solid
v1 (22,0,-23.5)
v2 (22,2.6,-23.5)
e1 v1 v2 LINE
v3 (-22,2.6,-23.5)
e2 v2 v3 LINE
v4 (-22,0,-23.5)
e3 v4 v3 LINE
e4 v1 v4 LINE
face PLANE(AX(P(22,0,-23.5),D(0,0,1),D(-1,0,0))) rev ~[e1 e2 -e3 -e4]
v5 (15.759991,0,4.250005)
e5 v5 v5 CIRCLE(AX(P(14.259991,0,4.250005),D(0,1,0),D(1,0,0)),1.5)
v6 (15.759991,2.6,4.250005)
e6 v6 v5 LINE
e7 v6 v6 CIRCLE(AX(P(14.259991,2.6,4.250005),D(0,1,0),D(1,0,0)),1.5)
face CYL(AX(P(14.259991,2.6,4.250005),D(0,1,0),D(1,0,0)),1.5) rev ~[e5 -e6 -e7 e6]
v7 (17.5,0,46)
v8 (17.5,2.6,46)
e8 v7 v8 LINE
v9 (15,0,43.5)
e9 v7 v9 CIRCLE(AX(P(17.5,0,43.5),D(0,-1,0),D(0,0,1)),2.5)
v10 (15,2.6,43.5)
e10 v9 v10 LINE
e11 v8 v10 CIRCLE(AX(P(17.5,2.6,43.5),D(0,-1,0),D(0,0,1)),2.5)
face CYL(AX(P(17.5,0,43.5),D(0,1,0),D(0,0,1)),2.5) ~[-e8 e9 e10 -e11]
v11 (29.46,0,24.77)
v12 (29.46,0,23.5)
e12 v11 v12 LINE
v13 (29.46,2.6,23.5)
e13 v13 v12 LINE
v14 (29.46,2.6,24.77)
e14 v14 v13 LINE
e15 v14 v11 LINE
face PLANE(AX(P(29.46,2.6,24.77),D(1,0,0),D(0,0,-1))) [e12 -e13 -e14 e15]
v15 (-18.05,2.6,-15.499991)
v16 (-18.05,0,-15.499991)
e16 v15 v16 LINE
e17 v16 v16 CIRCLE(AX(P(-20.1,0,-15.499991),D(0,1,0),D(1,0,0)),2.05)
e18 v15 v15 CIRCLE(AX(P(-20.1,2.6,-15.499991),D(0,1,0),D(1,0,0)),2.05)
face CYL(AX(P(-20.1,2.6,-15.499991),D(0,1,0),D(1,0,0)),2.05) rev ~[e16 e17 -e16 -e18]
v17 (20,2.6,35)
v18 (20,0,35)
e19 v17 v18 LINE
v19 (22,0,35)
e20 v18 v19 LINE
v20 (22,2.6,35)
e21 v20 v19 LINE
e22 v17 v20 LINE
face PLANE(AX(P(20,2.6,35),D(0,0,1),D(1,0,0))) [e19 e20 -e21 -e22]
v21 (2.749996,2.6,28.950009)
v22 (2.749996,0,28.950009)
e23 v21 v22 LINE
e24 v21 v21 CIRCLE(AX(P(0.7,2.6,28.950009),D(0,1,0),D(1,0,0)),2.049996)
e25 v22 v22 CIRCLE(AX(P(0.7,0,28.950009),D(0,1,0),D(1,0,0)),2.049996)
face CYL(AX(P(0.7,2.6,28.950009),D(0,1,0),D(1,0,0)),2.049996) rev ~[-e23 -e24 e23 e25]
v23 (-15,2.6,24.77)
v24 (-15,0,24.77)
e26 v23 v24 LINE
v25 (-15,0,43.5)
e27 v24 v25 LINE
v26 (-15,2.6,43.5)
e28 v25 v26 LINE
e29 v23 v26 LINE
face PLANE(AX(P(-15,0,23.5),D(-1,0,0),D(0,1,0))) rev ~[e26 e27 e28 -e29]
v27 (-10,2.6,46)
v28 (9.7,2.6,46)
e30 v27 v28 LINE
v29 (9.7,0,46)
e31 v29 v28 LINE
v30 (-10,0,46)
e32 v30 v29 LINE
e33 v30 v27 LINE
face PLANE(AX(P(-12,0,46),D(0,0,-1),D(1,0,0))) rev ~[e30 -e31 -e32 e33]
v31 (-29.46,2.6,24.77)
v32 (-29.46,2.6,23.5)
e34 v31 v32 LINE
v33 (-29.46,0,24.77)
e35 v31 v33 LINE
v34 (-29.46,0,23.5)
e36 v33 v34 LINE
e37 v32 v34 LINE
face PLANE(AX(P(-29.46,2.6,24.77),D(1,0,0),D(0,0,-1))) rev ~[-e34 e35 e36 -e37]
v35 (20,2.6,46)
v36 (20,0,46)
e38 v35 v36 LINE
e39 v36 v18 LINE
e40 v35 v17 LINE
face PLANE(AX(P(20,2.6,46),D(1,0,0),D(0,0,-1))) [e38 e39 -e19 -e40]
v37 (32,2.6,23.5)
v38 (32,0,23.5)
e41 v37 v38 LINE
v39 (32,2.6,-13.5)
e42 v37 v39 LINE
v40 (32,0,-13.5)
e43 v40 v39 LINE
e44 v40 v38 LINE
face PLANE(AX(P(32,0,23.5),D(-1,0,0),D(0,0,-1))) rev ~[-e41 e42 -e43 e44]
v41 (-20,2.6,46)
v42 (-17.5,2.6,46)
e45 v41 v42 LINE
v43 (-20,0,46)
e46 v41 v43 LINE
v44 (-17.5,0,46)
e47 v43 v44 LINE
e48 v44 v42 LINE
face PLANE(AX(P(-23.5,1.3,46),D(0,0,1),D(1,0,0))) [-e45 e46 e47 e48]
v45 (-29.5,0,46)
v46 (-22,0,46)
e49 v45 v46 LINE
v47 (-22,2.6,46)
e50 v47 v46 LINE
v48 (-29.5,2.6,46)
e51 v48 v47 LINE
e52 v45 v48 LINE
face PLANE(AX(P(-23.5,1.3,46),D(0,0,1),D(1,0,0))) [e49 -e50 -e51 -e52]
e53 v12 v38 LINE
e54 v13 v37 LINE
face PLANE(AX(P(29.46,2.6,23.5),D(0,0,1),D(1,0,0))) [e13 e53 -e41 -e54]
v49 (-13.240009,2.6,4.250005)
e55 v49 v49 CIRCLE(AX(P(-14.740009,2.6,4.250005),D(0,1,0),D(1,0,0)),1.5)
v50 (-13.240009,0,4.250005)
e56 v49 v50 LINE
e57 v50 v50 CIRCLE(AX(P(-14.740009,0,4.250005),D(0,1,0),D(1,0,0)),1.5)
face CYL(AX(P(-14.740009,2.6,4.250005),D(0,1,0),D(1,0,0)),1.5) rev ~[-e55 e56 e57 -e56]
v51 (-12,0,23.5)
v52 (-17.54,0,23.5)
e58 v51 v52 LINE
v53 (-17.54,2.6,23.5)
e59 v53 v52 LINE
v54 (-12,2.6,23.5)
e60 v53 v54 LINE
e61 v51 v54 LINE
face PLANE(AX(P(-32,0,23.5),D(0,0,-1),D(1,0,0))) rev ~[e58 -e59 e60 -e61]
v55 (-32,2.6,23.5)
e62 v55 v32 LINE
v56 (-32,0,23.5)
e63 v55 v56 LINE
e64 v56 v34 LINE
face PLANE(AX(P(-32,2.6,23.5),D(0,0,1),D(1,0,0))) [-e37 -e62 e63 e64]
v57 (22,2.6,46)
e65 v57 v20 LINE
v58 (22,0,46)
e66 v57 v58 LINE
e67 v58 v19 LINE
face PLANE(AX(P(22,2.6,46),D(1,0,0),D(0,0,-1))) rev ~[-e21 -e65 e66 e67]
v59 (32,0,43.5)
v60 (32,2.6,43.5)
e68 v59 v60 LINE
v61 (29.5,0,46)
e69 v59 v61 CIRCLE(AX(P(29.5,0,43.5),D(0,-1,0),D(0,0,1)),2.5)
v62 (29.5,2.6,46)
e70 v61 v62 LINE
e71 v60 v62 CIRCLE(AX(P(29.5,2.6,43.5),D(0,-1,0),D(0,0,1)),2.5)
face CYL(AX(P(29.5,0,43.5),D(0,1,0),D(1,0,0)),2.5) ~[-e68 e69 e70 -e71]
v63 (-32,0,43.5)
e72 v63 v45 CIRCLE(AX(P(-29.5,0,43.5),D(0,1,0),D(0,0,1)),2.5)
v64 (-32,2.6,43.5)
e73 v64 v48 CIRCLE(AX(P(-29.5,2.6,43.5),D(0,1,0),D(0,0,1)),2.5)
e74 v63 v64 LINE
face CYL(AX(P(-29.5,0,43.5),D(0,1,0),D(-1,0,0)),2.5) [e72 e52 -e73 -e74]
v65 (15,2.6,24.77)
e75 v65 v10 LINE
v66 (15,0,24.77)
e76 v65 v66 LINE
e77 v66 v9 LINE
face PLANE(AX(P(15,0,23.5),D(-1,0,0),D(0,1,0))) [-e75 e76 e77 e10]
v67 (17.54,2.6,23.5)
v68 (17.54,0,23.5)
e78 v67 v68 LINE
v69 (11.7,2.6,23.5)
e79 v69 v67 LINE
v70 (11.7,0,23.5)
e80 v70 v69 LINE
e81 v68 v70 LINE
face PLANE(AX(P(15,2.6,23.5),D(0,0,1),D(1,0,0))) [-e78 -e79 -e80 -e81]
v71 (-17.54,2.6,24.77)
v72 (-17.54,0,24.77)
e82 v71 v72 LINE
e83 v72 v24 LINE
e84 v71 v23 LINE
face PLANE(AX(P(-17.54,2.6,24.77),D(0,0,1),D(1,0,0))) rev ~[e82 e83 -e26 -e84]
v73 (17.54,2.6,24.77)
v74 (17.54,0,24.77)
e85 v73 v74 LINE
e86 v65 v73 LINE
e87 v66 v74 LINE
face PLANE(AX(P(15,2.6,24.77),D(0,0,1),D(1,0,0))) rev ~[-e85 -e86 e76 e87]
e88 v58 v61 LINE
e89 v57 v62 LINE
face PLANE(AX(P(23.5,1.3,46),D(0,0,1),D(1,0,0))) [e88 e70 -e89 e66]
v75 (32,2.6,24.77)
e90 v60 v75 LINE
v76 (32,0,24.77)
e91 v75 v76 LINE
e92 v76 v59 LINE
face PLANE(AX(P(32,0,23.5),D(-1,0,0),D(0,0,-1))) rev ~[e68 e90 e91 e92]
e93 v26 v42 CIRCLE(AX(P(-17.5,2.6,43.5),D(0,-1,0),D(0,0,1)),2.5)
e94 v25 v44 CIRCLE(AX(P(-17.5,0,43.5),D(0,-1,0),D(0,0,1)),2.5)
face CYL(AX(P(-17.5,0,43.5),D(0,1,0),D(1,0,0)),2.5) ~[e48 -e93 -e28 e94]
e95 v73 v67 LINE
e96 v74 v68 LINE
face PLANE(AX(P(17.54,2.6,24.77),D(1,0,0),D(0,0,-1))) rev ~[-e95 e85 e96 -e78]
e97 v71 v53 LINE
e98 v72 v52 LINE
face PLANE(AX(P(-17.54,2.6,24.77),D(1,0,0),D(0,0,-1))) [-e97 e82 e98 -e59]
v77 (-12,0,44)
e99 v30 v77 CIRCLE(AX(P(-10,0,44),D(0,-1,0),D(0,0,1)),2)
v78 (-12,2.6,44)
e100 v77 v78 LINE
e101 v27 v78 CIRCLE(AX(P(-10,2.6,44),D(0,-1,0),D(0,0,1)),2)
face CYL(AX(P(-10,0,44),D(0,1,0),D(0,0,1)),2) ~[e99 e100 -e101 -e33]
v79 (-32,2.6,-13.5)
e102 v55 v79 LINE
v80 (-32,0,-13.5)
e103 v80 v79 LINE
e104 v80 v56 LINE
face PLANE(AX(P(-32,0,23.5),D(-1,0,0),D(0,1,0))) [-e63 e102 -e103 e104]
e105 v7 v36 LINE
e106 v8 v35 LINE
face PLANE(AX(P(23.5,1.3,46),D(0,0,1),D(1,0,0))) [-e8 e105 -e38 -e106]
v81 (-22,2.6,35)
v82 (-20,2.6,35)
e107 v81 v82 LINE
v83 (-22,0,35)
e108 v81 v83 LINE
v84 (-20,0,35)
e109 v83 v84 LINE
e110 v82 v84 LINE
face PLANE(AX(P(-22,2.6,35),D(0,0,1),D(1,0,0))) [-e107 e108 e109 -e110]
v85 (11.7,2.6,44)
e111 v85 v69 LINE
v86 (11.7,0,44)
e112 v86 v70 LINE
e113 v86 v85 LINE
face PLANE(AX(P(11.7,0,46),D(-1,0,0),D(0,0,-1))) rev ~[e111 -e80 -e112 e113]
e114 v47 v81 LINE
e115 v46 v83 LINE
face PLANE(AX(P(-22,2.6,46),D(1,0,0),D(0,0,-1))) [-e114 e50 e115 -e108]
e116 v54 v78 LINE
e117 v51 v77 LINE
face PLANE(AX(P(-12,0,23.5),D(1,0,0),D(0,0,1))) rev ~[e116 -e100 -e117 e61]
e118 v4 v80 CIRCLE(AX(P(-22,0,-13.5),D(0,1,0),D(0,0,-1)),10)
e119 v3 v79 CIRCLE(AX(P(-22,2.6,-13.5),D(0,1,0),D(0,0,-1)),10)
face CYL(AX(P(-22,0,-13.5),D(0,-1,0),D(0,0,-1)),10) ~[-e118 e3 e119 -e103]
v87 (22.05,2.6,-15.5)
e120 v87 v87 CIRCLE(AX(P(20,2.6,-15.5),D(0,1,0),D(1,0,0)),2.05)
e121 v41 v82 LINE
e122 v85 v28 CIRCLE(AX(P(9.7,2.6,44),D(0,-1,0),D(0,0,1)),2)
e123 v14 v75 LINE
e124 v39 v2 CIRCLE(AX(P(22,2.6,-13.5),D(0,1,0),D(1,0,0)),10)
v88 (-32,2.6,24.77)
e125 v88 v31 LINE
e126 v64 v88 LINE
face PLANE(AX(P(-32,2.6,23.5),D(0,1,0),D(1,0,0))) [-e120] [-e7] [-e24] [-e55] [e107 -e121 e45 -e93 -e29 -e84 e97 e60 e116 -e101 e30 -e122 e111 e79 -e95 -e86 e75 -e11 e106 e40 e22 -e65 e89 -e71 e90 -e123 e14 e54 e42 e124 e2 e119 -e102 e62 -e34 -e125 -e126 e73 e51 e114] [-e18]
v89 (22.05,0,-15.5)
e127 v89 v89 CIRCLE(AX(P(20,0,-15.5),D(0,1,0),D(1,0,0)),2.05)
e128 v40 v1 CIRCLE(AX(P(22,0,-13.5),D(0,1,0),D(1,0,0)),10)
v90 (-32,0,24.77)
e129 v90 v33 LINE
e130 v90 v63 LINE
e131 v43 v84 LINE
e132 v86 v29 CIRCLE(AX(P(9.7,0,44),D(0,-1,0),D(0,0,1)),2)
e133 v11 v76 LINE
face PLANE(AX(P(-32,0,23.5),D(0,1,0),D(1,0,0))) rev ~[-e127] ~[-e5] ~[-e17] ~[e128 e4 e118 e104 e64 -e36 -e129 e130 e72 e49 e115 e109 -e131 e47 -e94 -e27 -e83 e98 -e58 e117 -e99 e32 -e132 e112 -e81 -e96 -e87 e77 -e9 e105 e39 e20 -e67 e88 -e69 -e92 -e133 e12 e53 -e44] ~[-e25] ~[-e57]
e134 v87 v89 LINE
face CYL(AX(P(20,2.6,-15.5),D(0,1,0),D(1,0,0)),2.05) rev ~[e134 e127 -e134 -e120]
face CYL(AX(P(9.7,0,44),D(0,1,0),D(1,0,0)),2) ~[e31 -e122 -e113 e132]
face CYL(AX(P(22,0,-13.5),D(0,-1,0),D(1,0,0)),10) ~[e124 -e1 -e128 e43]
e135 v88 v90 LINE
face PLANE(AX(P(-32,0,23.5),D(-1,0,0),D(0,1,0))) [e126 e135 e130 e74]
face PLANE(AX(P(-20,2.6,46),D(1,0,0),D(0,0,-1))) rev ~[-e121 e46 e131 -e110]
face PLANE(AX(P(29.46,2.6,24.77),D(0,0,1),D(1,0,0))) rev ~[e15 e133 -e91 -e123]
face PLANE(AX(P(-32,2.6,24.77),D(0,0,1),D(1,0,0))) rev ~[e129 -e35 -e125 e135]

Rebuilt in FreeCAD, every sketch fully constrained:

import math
import FreeCAD as App
import Part
import Sketcher

V = App.Vector


def edges_at(feature, points):
    """Names of the edges that pass closest to the given points."""
    edges = feature.Shape.Edges
    near = lambda p: min(range(len(edges)), key=lambda i: edges[i].distToShape(Part.Vertex(*p))[0])
    return sorted({f"Edge{near(p) + 1}" for p in points})

doc = App.newDocument("Part")
body = doc.addObject("PartDesign::Body", "Body")

# Sketch on XZ plane
sketch1 = body.newObject("Sketcher::SketchObject", "Sketch")
sketch1.AttachmentSupport = (doc.getObject("XZ_Plane"), [""])
sketch1.MapMode = "FlatFace"
sketch1.addGeometry([
    Part.LineSegment(V(12, 24, 0), V(32, 24, 0)),  # 0
    Part.LineSegment(V(32, 24, 0), V(32, -14, 0)),  # 1
    Part.ArcOfCircle(Part.Circle(V(22, -14, 0), V(0, 0, 1), 10), math.radians(-90), math.radians(0)),  # 2
    Part.LineSegment(V(22, -24, 0), V(-22, -24, 0)),  # 3
    Part.ArcOfCircle(Part.Circle(V(-22, -14, 0), V(0, 0, 1), 10), math.radians(180), math.radians(270)),  # 4
    Part.LineSegment(V(-32, -14, 0), V(-32, 24, 0)),  # 5
    Part.LineSegment(V(-32, 24, 0), V(-12, 24, 0)),  # 6
    Part.LineSegment(V(-12, 24, 0), V(-12, 46, 0)),  # 7
    Part.LineSegment(V(-12, 46, 0), V(12, 46, 0)),  # 8
    Part.LineSegment(V(12, 46, 0), V(12, 24, 0)),  # 9
], False)
sketch1.addConstraint([
    Sketcher.Constraint("Coincident", 0, 2, 1, 1),
    Sketcher.Constraint("Tangent", 1, 2, 2, 2),
    Sketcher.Constraint("Tangent", 2, 1, 3, 1),
    Sketcher.Constraint("Tangent", 3, 2, 4, 2),
    Sketcher.Constraint("Tangent", 4, 1, 5, 1),
    Sketcher.Constraint("Coincident", 5, 2, 6, 1),
    Sketcher.Constraint("Coincident", 6, 2, 7, 1),
    Sketcher.Constraint("Coincident", 7, 2, 8, 1),
    Sketcher.Constraint("Coincident", 8, 2, 9, 1),
    Sketcher.Constraint("Coincident", 9, 2, 0, 1),
    Sketcher.Constraint("Horizontal", 0),
    Sketcher.Constraint("Vertical", 1),
    Sketcher.Constraint("Horizontal", 3),
    Sketcher.Constraint("Vertical", 5),
    Sketcher.Constraint("Horizontal", 6),
    Sketcher.Constraint("Vertical", 7),
    Sketcher.Constraint("Horizontal", 8),
    Sketcher.Constraint("Vertical", 9),
    Sketcher.Constraint("Equal", 2, 4),
    Sketcher.Constraint("Symmetric", 0, 2, 5, 2, -2),
    Sketcher.Constraint("Radius", 2, 10.0),
    Sketcher.Constraint("DistanceX", 3, 2, 3, 1, 44.0),
    Sketcher.Constraint("DistanceX", 6, 1, 6, 2, 20.0),
    Sketcher.Constraint("DistanceY", 1, 2, 1, 1, 37.0),
    Sketcher.Constraint("DistanceX", 0, 1, 0, 2, 20.3),
    Sketcher.Constraint("DistanceY", 7, 1, 7, 2, 22.5),
    Sketcher.Constraint("DistanceY", -1, 1, 7, 2, 46.0),
])
pad1 = body.newObject("PartDesign::Pad", "Pad")
pad1.Profile = sketch1
pad1.Length = 2.6
pad1.Reversed = True

# Sketch on XZ plane
sketch2 = body.newObject("Sketcher::SketchObject", "Sketch001")
sketch2.AttachmentSupport = (doc.getObject("XZ_Plane"), [""])
sketch2.MapMode = "FlatFace"
sketch2.AttachmentOffset = App.Placement(V(0, 0, -2.6), App.Rotation())
sketch2.addGeometry([
    Part.Circle(V(-20.1, -15.5, 0), V(0, 0, 1), 2),  # 0
    Part.Circle(V(20, -15.5, 0), V(0, 0, 1), 2),  # 1
    Part.Circle(V(-14.7, 4.3, 0), V(0, 0, 1), 1.5),  # 2
    Part.Circle(V(14.3, 4.3, 0), V(0, 0, 1), 1.5),  # 3
    Part.Circle(V(0.7, 29, 0), V(0, 0, 1), 2),  # 4
], False)
sketch2.addConstraint([
    Sketcher.Constraint("Equal", 0, 1),
    Sketcher.Constraint("Equal", 2, 3),
    Sketcher.Constraint("Horizontal", 2, 3, 3, 3),
    Sketcher.Constraint("Diameter", 2, 3.0),
    Sketcher.Constraint("Diameter", 0, 4.1),
    Sketcher.Constraint("DistanceX", -1, 1, 1, 3, 20.0),
    Sketcher.Constraint("DistanceX", 2, 3, 3, 3, 29.0),
    Sketcher.Constraint("DistanceX", 0, 3, -1, 1, 20.1),
    Sketcher.Constraint("DistanceY", 1, 3, -1, 1, 15.5),
    Sketcher.Constraint("DistanceX", -1, 1, 4, 3, 0.7),
    Sketcher.Constraint("Diameter", 4, 4.099992),
    Sketcher.Constraint("DistanceY", 0, 3, 4, 3, 44.45),
    Sketcher.Constraint("DistanceY", 0, 3, -1, 1, 15.499991),
    Sketcher.Constraint("DistanceX", 2, 3, -1, 1, 14.740009),
    Sketcher.Constraint("DistanceY", -1, 1, 2, 3, 4.250005),
])
pocket1 = body.newObject("PartDesign::Pocket", "Pocket")
pocket1.Profile = sketch2
pocket1.Type = "ThroughAll"
pocket1.Midplane = True
doc.recompute()

fillet = body.newObject("PartDesign::Fillet", "Fillet")
fillet.Base = (pocket1, edges_at(pocket1, [(11.7, 1.3, 46), (-12, 1.3, 46)]))
fillet.Radius = 2

# Sketch on XY plane
sketch3 = body.newObject("Sketcher::SketchObject", "Sketch002")
sketch3.AttachmentSupport = (doc.getObject("XY_Plane"), [""])
sketch3.MapMode = "FlatFace"
sketch3.AttachmentOffset = App.Placement(V(0, 0, 23.5), App.Rotation())
sketch3.addGeometry([
    Part.LineSegment(V(-32, 2.6, 0), V(-32, 0, 0)),  # 0
    Part.LineSegment(V(-32, 0, 0), V(-15, 0, 0)),  # 1
    Part.LineSegment(V(-15, 0, 0), V(-15, 2.6, 0)),  # 2
    Part.LineSegment(V(-15, 2.6, 0), V(-32, 2.6, 0)),  # 3
    Part.LineSegment(V(15, 2.6, 0), V(15, 0, 0)),  # 4
    Part.LineSegment(V(15, 0, 0), V(32, 0, 0)),  # 5
    Part.LineSegment(V(32, 0, 0), V(32, 2.6, 0)),  # 6
    Part.LineSegment(V(32, 2.6, 0), V(15, 2.6, 0)),  # 7
], False)
sketch3.addConstraint([
    Sketcher.Constraint("Coincident", 0, 2, 1, 1),
    Sketcher.Constraint("Coincident", 1, 2, 2, 1),
    Sketcher.Constraint("Coincident", 2, 2, 3, 1),
    Sketcher.Constraint("Coincident", 3, 2, 0, 1),
    Sketcher.Constraint("Coincident", 4, 2, 5, 1),
    Sketcher.Constraint("Coincident", 5, 2, 6, 1),
    Sketcher.Constraint("Coincident", 6, 2, 7, 1),
    Sketcher.Constraint("Coincident", 7, 2, 4, 1),
    Sketcher.Constraint("Vertical", 0),
    Sketcher.Constraint("Horizontal", 1),
    Sketcher.Constraint("Vertical", 2),
    Sketcher.Constraint("Horizontal", 3),
    Sketcher.Constraint("Vertical", 4),
    Sketcher.Constraint("Horizontal", 5),
    Sketcher.Constraint("Vertical", 6),
    Sketcher.Constraint("Horizontal", 7),
    Sketcher.Constraint("Symmetric", 1, 2, 4, 2, -1, 1),
    Sketcher.Constraint("Symmetric", 0, 2, 5, 2, -2),
    Sketcher.Constraint("Horizontal", 3, 2, 6, 2),
    Sketcher.Constraint("DistanceX", 1, 1, 1, 2, 17.0),
    Sketcher.Constraint("DistanceY", 0, 2, 0, 1, 2.6),
    Sketcher.Constraint("DistanceX", 0, 2, -1, 1, 32.0),
])
pad2 = body.newObject("PartDesign::Pad", "Pad001")
pad2.Profile = sketch3
pad2.Length = 22.5

# Sketch on XZ plane
sketch4 = body.newObject("Sketcher::SketchObject", "Sketch003")
sketch4.AttachmentSupport = (doc.getObject("XZ_Plane"), [""])
sketch4.MapMode = "FlatFace"
sketch4.AttachmentOffset = App.Placement(V(0, 0, -2.6), App.Rotation())
sketch4.addGeometry([
    Part.LineSegment(V(-22, 35, 0), V(-22, 46, 0)),  # 0
    Part.LineSegment(V(-22, 46, 0), V(-20, 46, 0)),  # 1
    Part.LineSegment(V(-20, 46, 0), V(-20, 35, 0)),  # 2
    Part.LineSegment(V(-20, 35, 0), V(-22, 35, 0)),  # 3
    Part.LineSegment(V(20, 35, 0), V(20, 46, 0)),  # 4
    Part.LineSegment(V(20, 46, 0), V(22, 46, 0)),  # 5
    Part.LineSegment(V(22, 46, 0), V(22, 35, 0)),  # 6
    Part.LineSegment(V(22, 35, 0), V(20, 35, 0)),  # 7
], False)
sketch4.addConstraint([
    Sketcher.Constraint("Coincident", 0, 2, 1, 1),
    Sketcher.Constraint("Coincident", 1, 2, 2, 1),
    Sketcher.Constraint("Coincident", 2, 2, 3, 1),
    Sketcher.Constraint("Coincident", 3, 2, 0, 1),
    Sketcher.Constraint("Coincident", 4, 2, 5, 1),
    Sketcher.Constraint("Coincident", 5, 2, 6, 1),
    Sketcher.Constraint("Coincident", 6, 2, 7, 1),
    Sketcher.Constraint("Coincident", 7, 2, 4, 1),
    Sketcher.Constraint("Vertical", 0),
    Sketcher.Constraint("Horizontal", 1),
    Sketcher.Constraint("Vertical", 2),
    Sketcher.Constraint("Horizontal", 3),
    Sketcher.Constraint("Vertical", 4),
    Sketcher.Constraint("Horizontal", 5),
    Sketcher.Constraint("Vertical", 6),
    Sketcher.Constraint("Horizontal", 7),
    Sketcher.Constraint("Symmetric", 1, 2, 4, 2, -2),
    Sketcher.Constraint("Symmetric", 3, 2, 6, 2, -2),
    Sketcher.Constraint("DistanceX", 1, 1, 1, 2, 2.0),
    Sketcher.Constraint("DistanceY", 0, 1, 0, 2, 11.0),
    Sketcher.Constraint("DistanceX", 0, 2, -1, 1, 22.0),
    Sketcher.Constraint("DistanceY", -1, 1, 0, 2, 46.0),
])
pocket2 = body.newObject("PartDesign::Pocket", "Pocket001")
pocket2.Profile = sketch4
pocket2.Length = 22.5
pocket2.Reversed = True
doc.recompute()

fillet2 = body.newObject("PartDesign::Fillet", "Fillet001")
fillet2.Base = (pocket2, edges_at(pocket2, [
    (-32, 1.3, 46),
    (-15, 1.3, 46),
    (32, 1.3, 46),
    (15, 1.3, 46),
]))
fillet2.Radius = 2.5

# Sketch on XZ plane
sketch5 = body.newObject("Sketcher::SketchObject", "Sketch004")
sketch5.AttachmentSupport = (doc.getObject("XZ_Plane"), [""])
sketch5.MapMode = "FlatFace"
sketch5.AttachmentOffset = App.Placement(V(0, 0, -2.6), App.Rotation())
sketch5.addGeometry([
    Part.LineSegment(V(-32, 23.5, 0), V(-32, 24.8, 0)),  # 0
    Part.LineSegment(V(-32, 24.8, 0), V(-29.5, 24.8, 0)),  # 1
    Part.LineSegment(V(-29.5, 24.8, 0), V(-29.5, 23.5, 0)),  # 2
    Part.LineSegment(V(-29.5, 23.5, 0), V(-32, 23.5, 0)),  # 3
    Part.LineSegment(V(29.5, 23.5, 0), V(29.5, 24.8, 0)),  # 4
    Part.LineSegment(V(29.5, 24.8, 0), V(32, 24.8, 0)),  # 5
    Part.LineSegment(V(32, 24.8, 0), V(32, 23.5, 0)),  # 6
    Part.LineSegment(V(32, 23.5, 0), V(29.5, 23.5, 0)),  # 7
    Part.LineSegment(V(-17.5, 23.5, 0), V(-17.5, 24.8, 0)),  # 8
    Part.LineSegment(V(-17.5, 24.8, 0), V(-15, 24.8, 0)),  # 9
    Part.LineSegment(V(-15, 24.8, 0), V(-15, 23.5, 0)),  # 10
    Part.LineSegment(V(-15, 23.5, 0), V(-17.5, 23.5, 0)),  # 11
    Part.LineSegment(V(15, 23.5, 0), V(15, 24.8, 0)),  # 12
    Part.LineSegment(V(15, 24.8, 0), V(17.5, 24.8, 0)),  # 13
    Part.LineSegment(V(17.5, 24.8, 0), V(17.5, 23.5, 0)),  # 14
    Part.LineSegment(V(17.5, 23.5, 0), V(15, 23.5, 0)),  # 15
], False)
sketch5.addConstraint([
    Sketcher.Constraint("Coincident", 0, 2, 1, 1),
    Sketcher.Constraint("Coincident", 1, 2, 2, 1),
    Sketcher.Constraint("Coincident", 2, 2, 3, 1),
    Sketcher.Constraint("Coincident", 3, 2, 0, 1),
    Sketcher.Constraint("Coincident", 4, 2, 5, 1),
    Sketcher.Constraint("Coincident", 5, 2, 6, 1),
    Sketcher.Constraint("Coincident", 6, 2, 7, 1),
    Sketcher.Constraint("Coincident", 7, 2, 4, 1),
    Sketcher.Constraint("Coincident", 8, 2, 9, 1),
    Sketcher.Constraint("Coincident", 9, 2, 10, 1),
    Sketcher.Constraint("Coincident", 10, 2, 11, 1),
    Sketcher.Constraint("Coincident", 11, 2, 8, 1),
    Sketcher.Constraint("Coincident", 12, 2, 13, 1),
    Sketcher.Constraint("Coincident", 13, 2, 14, 1),
    Sketcher.Constraint("Coincident", 14, 2, 15, 1),
    Sketcher.Constraint("Coincident", 15, 2, 12, 1),
    Sketcher.Constraint("Vertical", 0),
    Sketcher.Constraint("Horizontal", 1),
    Sketcher.Constraint("Vertical", 2),
    Sketcher.Constraint("Horizontal", 3),
    Sketcher.Constraint("Vertical", 4),
    Sketcher.Constraint("Horizontal", 5),
    Sketcher.Constraint("Vertical", 6),
    Sketcher.Constraint("Horizontal", 7),
    Sketcher.Constraint("Vertical", 8),
    Sketcher.Constraint("Horizontal", 9),
    Sketcher.Constraint("Vertical", 10),
    Sketcher.Constraint("Horizontal", 11),
    Sketcher.Constraint("Vertical", 12),
    Sketcher.Constraint("Horizontal", 13),
    Sketcher.Constraint("Vertical", 14),
    Sketcher.Constraint("Horizontal", 15),
    Sketcher.Constraint("Symmetric", 1, 2, 4, 2, -2),
    Sketcher.Constraint("Symmetric", 3, 2, 6, 2, -2),
    Sketcher.Constraint("Symmetric", 9, 2, 12, 2, -2),
    Sketcher.Constraint("Symmetric", 11, 2, 14, 2, -2),
    Sketcher.Constraint("Horizontal", 5, 2, 8, 2),
    Sketcher.Constraint("Horizontal", 7, 2, 10, 2),
    Sketcher.Constraint("Equal", 7, 9),
    Sketcher.Constraint("DistanceX", 0, 2, -1, 1, 32.0),
    Sketcher.Constraint("DistanceX", 9, 2, -1, 1, 15.0),
    Sketcher.Constraint("DistanceX", 1, 1, 1, 2, 2.54),
    Sketcher.Constraint("DistanceY", 0, 1, 0, 2, 1.27),
    Sketcher.Constraint("DistanceY", -1, 1, 2, 2, 23.5),
])
pocket3 = body.newObject("PartDesign::Pocket", "Pocket002")
pocket3.Profile = sketch5
pocket3.Type = "ThroughAll"
pocket3.Reversed = True

doc.recompute()
